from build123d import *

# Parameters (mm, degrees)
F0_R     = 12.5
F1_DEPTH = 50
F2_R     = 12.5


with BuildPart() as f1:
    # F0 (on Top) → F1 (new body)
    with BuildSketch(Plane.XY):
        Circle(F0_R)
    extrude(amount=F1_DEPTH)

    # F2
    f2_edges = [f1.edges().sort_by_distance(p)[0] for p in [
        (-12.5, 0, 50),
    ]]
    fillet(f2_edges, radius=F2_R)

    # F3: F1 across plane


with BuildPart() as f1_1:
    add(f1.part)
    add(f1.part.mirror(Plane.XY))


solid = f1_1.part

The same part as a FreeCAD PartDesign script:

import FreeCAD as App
import Part
import Sketcher
from FreeCAD import Vector


def edges_at(feature, points):
    """Names of the edges that pass closest to the given points."""
    edges = feature.Shape.Edges
    near = lambda p: min(range(len(edges)), key=lambda i: edges[i].distToShape(Part.Vertex(*p))[0])
    return sorted({f"Edge{near(p) + 1}" for p in points})

doc = App.newDocument("Part")
params = doc.addObject("Spreadsheet::Sheet", "Params")
for row, (alias, value) in enumerate([
    ("sketch1_diameter", "25 mm"),
    ("pad1_length", "50 mm"),
    ("fillet_radius", "12.5 mm"),
], start=1):
    params.set(f"A{row}", alias)
    params.set(f"B{row}", "=" + value)
    params.setAlias(f"B{row}", alias)

body = doc.addObject("PartDesign::Body", "Body")

sketch1 = body.newObject("Sketcher::SketchObject", "Sketch")
sketch1.AttachmentSupport = (doc.getObject("XY_Plane"), [""])
sketch1.MapMode = "FlatFace"
sketch1.addGeometry(Part.Circle(Vector(0, 0, 0), Vector(0, 0, 1), 12.5), False)
sketch1.addConstraint(Sketcher.Constraint("Coincident", 0, 3, -1, 1))
sketch1.addConstraint(Sketcher.Constraint("Diameter", 0, 25.0))
sketch1.setExpression("Constraints[1]", "Params.sketch1_diameter")
pad1 = body.newObject("PartDesign::Pad", "Pad")
pad1.Profile = sketch1
pad1.setExpression("Length", "Params.pad1_length")
doc.recompute()

fillet = body.newObject("PartDesign::Fillet", "Fillet")
fillet.Base = (pad1, edges_at(pad1, [(-12.5, 0, 50)]))
fillet.setExpression("Radius", "Params.fillet_radius")
body2 = doc.addObject("PartDesign::Body", "Body001")
doc.recompute()

body2.BaseFeature = body
doc.recompute()

mirroring = doc.addObject("Part::Mirroring", "Mirroring")
mirroring.Source = body
mirroring.Base = Vector(0, 0, 0)
mirroring.Normal = Vector(0, 0, 1)
body3 = doc.addObject("PartDesign::Body", "Body002")
body3.BaseFeature = mirroring
boolean = body2.newObject("PartDesign::Boolean", "Boolean")
boolean.Type = "Fuse"
boolean.addObjects([body3])
doc.recompute()
mirroring.Visibility = False

doc.recompute()
